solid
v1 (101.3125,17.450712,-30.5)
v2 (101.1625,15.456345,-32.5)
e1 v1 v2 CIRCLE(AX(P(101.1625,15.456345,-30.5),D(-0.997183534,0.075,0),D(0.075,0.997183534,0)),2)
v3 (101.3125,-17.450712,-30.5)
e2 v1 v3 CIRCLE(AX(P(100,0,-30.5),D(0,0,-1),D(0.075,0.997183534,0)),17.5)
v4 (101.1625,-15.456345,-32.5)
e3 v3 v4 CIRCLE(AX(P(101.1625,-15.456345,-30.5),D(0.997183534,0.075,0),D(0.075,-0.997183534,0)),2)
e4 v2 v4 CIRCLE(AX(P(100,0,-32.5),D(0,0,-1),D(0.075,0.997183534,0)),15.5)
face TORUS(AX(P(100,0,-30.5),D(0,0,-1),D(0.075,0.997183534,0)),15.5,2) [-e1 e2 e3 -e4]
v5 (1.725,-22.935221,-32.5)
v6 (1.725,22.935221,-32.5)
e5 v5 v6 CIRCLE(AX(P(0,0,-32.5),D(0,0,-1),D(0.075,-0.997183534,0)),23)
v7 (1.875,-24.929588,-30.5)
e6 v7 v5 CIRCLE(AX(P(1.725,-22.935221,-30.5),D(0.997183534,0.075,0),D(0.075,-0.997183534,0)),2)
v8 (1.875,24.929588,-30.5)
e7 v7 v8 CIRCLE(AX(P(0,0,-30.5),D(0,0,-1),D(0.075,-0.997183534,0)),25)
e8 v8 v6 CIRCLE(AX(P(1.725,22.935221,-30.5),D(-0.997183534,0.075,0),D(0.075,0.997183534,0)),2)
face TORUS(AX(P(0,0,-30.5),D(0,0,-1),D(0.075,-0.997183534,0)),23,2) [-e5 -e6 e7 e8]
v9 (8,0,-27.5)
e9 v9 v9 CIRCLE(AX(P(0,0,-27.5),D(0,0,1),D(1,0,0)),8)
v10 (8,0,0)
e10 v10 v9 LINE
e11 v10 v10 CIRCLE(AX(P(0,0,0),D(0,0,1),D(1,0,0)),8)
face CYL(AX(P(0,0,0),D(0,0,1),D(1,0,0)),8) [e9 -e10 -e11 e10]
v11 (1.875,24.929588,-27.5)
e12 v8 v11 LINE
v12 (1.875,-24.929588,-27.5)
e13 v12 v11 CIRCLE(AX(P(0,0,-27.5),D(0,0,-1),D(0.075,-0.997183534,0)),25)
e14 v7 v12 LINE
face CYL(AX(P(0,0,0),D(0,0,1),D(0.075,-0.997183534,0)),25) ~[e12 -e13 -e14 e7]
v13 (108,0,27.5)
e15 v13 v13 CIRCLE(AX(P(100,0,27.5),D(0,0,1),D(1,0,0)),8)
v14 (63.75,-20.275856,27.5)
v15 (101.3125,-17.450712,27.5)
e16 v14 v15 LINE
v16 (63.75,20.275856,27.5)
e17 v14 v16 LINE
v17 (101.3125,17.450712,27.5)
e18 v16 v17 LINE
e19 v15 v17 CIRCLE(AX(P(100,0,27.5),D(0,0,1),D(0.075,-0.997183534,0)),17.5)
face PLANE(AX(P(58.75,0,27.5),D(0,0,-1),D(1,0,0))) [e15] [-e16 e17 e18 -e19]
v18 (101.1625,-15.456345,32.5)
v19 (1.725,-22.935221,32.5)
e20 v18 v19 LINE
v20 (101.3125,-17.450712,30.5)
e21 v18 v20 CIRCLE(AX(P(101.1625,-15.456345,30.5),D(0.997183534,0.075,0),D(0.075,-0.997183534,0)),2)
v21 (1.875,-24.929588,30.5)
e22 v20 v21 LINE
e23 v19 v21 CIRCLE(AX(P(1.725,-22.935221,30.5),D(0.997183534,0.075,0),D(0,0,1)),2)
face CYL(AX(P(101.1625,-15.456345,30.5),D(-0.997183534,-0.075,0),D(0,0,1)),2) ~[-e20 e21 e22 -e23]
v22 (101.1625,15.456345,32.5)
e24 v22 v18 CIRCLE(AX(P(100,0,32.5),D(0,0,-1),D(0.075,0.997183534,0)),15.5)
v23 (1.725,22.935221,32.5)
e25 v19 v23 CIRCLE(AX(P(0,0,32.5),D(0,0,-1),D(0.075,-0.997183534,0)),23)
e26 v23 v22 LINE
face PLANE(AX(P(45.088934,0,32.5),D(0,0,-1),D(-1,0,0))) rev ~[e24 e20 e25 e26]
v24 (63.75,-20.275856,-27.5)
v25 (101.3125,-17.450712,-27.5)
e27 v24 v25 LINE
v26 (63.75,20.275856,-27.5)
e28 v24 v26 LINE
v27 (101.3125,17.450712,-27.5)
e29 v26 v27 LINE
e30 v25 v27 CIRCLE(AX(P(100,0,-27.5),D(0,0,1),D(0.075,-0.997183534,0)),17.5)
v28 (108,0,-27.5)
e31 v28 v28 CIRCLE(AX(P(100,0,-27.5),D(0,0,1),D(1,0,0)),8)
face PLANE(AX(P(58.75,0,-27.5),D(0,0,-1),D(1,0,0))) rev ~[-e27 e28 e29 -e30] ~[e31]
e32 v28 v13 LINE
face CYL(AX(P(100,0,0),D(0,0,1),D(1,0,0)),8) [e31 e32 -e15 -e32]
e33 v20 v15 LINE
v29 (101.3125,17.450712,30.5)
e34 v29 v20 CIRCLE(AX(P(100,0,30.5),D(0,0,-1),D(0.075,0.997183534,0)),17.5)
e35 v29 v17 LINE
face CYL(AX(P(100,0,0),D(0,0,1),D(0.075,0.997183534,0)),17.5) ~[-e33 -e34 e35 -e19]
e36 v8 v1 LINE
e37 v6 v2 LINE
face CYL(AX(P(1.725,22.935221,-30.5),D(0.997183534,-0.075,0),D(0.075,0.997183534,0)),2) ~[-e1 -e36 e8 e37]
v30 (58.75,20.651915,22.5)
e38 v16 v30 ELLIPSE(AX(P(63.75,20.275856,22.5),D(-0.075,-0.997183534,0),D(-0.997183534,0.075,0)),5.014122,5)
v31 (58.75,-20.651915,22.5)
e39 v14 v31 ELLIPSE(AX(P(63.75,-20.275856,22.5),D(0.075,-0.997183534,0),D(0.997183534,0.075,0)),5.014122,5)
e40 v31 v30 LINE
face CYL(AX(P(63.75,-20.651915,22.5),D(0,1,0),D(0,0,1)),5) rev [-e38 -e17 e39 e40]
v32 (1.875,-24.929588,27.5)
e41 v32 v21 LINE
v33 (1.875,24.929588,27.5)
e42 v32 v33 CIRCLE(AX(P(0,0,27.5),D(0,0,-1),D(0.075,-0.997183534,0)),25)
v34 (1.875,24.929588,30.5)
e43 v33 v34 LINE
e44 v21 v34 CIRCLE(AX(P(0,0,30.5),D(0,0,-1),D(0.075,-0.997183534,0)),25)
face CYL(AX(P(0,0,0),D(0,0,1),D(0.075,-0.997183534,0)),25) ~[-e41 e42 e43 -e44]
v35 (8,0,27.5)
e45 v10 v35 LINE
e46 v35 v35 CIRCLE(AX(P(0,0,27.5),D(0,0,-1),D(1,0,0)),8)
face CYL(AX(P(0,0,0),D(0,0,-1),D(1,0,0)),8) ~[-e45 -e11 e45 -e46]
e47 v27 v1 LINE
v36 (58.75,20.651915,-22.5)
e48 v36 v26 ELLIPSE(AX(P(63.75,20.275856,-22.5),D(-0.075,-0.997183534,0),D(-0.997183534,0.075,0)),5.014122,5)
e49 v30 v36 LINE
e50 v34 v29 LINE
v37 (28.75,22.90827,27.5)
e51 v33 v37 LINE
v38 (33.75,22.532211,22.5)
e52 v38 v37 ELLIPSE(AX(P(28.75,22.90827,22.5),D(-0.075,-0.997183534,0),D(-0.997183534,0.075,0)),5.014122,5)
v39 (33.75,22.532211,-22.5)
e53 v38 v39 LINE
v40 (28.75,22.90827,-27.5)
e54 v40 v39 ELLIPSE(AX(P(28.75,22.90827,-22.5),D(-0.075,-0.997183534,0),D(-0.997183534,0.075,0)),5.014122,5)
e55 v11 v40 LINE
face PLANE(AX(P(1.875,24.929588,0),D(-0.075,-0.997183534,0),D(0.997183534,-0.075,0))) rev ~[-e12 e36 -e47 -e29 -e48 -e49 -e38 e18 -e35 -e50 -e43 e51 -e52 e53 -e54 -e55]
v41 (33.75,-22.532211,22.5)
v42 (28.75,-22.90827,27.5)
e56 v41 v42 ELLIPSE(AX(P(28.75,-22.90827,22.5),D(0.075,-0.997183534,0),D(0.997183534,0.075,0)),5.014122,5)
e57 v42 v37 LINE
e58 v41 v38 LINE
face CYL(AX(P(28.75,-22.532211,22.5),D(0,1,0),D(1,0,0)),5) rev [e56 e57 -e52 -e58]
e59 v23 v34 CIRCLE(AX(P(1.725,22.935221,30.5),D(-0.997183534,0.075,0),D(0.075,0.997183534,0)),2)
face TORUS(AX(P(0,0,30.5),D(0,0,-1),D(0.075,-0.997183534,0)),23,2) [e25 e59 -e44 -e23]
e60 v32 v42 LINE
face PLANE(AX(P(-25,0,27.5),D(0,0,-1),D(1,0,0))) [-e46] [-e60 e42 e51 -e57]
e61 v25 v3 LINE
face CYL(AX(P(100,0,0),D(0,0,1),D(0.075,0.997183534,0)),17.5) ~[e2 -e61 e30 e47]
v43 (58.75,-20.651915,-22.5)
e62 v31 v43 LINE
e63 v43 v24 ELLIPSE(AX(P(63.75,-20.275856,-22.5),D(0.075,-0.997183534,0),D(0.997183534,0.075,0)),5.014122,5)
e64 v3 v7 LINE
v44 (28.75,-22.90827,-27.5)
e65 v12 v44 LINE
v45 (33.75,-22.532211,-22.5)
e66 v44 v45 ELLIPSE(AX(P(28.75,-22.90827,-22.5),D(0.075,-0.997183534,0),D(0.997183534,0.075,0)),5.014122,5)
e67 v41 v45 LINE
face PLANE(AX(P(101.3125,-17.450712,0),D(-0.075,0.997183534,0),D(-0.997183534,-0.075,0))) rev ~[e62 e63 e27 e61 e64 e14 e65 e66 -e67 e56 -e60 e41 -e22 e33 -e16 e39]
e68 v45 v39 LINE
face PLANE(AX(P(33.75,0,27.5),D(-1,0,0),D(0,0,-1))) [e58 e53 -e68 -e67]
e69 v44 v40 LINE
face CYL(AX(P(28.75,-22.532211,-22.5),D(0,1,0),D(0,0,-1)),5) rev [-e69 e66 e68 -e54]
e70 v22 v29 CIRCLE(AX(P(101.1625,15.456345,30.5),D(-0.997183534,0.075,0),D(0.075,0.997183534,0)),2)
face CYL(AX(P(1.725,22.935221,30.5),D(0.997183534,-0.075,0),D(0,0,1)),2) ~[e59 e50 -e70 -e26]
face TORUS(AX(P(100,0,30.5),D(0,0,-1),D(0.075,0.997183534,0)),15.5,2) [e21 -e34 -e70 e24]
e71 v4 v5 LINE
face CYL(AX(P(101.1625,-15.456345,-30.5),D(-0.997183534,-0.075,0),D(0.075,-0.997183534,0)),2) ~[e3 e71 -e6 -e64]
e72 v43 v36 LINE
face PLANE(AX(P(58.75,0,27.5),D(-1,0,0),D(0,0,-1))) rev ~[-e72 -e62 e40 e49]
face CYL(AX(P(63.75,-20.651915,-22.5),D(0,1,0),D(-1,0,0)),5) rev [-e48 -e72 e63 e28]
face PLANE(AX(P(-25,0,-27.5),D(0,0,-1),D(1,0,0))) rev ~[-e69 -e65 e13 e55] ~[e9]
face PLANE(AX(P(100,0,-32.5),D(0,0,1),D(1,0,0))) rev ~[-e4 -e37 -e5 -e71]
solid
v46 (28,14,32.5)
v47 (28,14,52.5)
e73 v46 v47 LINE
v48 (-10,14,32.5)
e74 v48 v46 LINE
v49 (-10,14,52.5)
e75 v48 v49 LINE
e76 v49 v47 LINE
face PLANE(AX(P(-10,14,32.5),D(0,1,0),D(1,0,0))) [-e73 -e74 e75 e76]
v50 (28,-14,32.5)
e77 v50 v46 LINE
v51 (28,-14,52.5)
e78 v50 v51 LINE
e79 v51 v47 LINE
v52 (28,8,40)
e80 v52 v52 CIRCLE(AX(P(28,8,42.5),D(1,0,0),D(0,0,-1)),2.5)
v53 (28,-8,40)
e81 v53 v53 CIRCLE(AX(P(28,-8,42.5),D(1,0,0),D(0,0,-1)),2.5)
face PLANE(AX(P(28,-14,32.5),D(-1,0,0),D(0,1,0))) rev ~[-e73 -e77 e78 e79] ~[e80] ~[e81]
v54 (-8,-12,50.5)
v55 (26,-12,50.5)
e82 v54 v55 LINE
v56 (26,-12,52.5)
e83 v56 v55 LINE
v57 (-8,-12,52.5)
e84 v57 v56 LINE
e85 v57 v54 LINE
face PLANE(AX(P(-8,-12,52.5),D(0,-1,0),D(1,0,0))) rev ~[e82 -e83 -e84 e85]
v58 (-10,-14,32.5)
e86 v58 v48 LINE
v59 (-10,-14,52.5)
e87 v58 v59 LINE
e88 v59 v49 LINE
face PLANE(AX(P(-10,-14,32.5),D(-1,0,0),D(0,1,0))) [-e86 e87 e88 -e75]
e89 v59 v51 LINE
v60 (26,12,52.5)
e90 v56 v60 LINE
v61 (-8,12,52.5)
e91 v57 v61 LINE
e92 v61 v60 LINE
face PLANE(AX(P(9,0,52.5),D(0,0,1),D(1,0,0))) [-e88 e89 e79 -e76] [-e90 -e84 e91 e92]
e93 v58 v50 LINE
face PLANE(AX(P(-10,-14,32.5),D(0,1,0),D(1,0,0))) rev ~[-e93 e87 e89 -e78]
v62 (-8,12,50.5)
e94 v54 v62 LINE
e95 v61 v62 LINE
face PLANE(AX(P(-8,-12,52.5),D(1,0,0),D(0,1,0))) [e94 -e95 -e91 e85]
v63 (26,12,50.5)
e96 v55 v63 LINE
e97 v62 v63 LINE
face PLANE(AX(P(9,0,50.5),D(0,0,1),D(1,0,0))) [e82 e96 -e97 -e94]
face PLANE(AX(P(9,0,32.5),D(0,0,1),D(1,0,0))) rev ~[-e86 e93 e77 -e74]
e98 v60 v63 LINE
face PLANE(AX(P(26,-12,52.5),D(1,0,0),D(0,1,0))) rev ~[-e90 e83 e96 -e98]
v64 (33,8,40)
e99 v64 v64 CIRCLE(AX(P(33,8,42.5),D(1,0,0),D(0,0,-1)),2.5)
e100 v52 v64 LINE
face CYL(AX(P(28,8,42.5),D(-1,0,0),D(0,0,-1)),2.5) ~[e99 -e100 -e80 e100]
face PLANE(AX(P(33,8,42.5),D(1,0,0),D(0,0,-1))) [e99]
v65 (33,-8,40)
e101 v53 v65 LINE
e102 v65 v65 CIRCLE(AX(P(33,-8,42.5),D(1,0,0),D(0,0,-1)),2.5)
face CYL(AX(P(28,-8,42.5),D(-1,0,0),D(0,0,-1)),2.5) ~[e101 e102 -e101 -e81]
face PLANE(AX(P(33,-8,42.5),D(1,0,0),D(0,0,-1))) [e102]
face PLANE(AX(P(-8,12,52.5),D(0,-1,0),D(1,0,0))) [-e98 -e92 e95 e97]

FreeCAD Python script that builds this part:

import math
import FreeCAD as App
import Part
import Sketcher
from FreeCAD import Vector
Q = App.Units.Quantity


def edges_at(feature, points):
    """Names of the edges that pass closest to the given points."""
    edges = feature.Shape.Edges
    near = lambda p: min(range(len(edges)), key=lambda i: edges[i].distToShape(Part.Vertex(*p))[0])
    return sorted({f"Edge{near(p) + 1}" for p in points})


def add_polygon(sketch, points):
    """Adds a closed chain of lines whose ends are joined by coincident constraints."""
    first, n = sketch.GeometryCount, len(points)
    for a, b in zip(points, points[1:] + points[:1]):
        sketch.addGeometry(Part.LineSegment(App.Vector(*a, 0), App.Vector(*b, 0)), False)
    for i in range(n):
        sketch.addConstraint(Sketcher.Constraint("Coincident", first + i, 2, first + (i + 1) % n, 1))

doc = App.newDocument("Part")
body = doc.addObject("PartDesign::Body", "Body")

# Sketch on XY plane
sketch1 = body.newObject("Sketcher::SketchObject", "Sketch")
sketch1.AttachmentSupport = (doc.getObject("XY_Plane"), [""])
sketch1.MapMode = "FlatFace"
sketch1.addGeometry([
    Part.LineSegment(Vector(101, 17, 0), Vector(2, 25, 0)),
    Part.ArcOfCircle(Part.Circle(Vector(0, 0, 0), Vector(0, 0, 1), 25), math.radians(86), math.radians(274)),
    Part.LineSegment(Vector(2, -25, 0), Vector(101, -17, 0)),
    Part.ArcOfCircle(Part.Circle(Vector(100, 0, 0), Vector(0, 0, 1), 18), math.radians(-86), math.radians(86)),
], False)
sketch1.addConstraint([
    Sketcher.Constraint("Tangent", 0, 2, 1, 1),
    Sketcher.Constraint("Tangent", 1, 2, 2, 1),
    Sketcher.Constraint("Tangent", 2, 2, 3, 1),
    Sketcher.Constraint("Tangent", 3, 2, 0, 1),
    Sketcher.Constraint("Coincident", 1, 3, -1, 1),
    Sketcher.Constraint("PointOnObject", 3, 3, -1),
    Sketcher.Constraint("Radius", 1, Q("25 mm")),
    Sketcher.Constraint("Radius", 3, Q("17.5 mm")),
    Sketcher.Constraint("DistanceX", -1, 1, 3, 3, Q("100 mm")),
])
pad1 = body.newObject("PartDesign::Pad", "Pad")
pad1.Profile = sketch1
pad1.Length = 65
pad1.Midplane = True

# Sketch on XZ plane
sketch2 = body.newObject("Sketcher::SketchObject", "Sketch001")
sketch2.AttachmentSupport = (doc.getObject("XZ_Plane"), [""])
sketch2.MapMode = "FlatFace"
add_polygon(sketch2, [(-25, -28), (-25, 28), (34, 28), (34, -28)])  # lines 0-3
add_polygon(sketch2, [(59, -28), (59, 28), (118, 28), (118, -28)])  # lines 4-7
sketch2.addConstraint([
    Sketcher.Constraint("Vertical", 0),
    Sketcher.Constraint("Horizontal", 1),
    Sketcher.Constraint("Vertical", 2),
    Sketcher.Constraint("Horizontal", 3),
    Sketcher.Constraint("Vertical", 4),
    Sketcher.Constraint("Horizontal", 5),
    Sketcher.Constraint("Vertical", 6),
    Sketcher.Constraint("Horizontal", 7),
    Sketcher.Constraint("Horizontal", 1, 2, 4, 2),
    Sketcher.Constraint("Horizontal", 3, 2, 6, 2),
    Sketcher.Constraint("Equal", 3, 5),
    Sketcher.Constraint("DistanceY", 0, 1, 0, 2, Q("55 mm")),
    Sketcher.Constraint("DistanceX", 0, 2, -1, 1, Q("25 mm")),
    Sketcher.Constraint("DistanceX", 1, 2, 4, 2, Q("25 mm")),
    Sketcher.Constraint("DistanceX", 1, 1, 1, 2, Q("58.75 mm")),
    Sketcher.Constraint("DistanceY", -1, 1, 0, 2, Q("27.5 mm")),
])
pocket1 = body.newObject("PartDesign::Pocket", "Pocket")
pocket1.Profile = sketch2
pocket1.Type = "ThroughAll"
pocket1.Midplane = True

# Sketch on XY plane
sketch3 = body.newObject("Sketcher::SketchObject", "Sketch002")
sketch3.AttachmentSupport = (doc.getObject("XY_Plane"), [""])
sketch3.MapMode = "FlatFace"
sketch3.addGeometry([
    Part.Circle(Vector(0, 0, 0), Vector(0, 0, 1), 8),
    Part.Circle(Vector(100, 0, 0), Vector(0, 0, 1), 8),
], False)
sketch3.addConstraint([
    Sketcher.Constraint("Coincident", 0, 3, -1, 1),
    Sketcher.Constraint("Equal", 0, 1),
    Sketcher.Constraint("PointOnObject", 1, 3, -1),
    Sketcher.Constraint("Diameter", 0, Q("16 mm")),
    Sketcher.Constraint("DistanceX", -1, 1, 1, 3, Q("100 mm")),
])
pad2 = body.newObject("PartDesign::Pad", "Pad001")
pad2.Profile = sketch3
pad2.Length = 65
pad2.Midplane = True
doc.recompute()

fillet = body.newObject("PartDesign::Fillet", "Fillet")
fillet.Base = (pad2, edges_at(pad2, [
    (33.75, 0, -27.5),
    (33.75, 0, 27.5),
    (58.75, 0, 27.5),
    (58.75, 0, -27.5),
]))
fillet.Radius = 5
doc.recompute()

fillet2 = body.newObject("PartDesign::Fillet", "Fillet001")
fillet2.Base = (fillet, edges_at(fillet, [
    (117.5, 0, 32.5),
    (51.594, 21.19, 32.5),
    (-25, 0, 32.5),
    (51.594, 21.19, -32.5),
    (117.5, 0, -32.5),
    (51.594, -21.19, -32.5),
    (-25, 0, -32.5),
    (51.594, -21.19, 32.5),
]))
fillet2.Radius = 2
body2 = doc.addObject("PartDesign::Body", "Body001")

# Sketch on XY plane
sketch4 = body2.newObject("Sketcher::SketchObject", "Sketch003")
sketch4.AttachmentSupport = (doc.getObject("XY_Plane001"), [""])
sketch4.MapMode = "FlatFace"
sketch4.AttachmentOffset = App.Placement(Vector(0, 0, 32.5), App.Rotation())
add_polygon(sketch4, [(-10, 14), (-10, -14), (28, -14), (28, 14)])  # lines 0-3
sketch4.addConstraint([
    Sketcher.Constraint("Vertical", 0),
    Sketcher.Constraint("Horizontal", 1),
    Sketcher.Constraint("Vertical", 2),
    Sketcher.Constraint("Horizontal", 3),
    Sketcher.Constraint("DistanceX", 1, 1, 1, 2, Q("38 mm")),
    Sketcher.Constraint("DistanceY", 0, 2, 0, 1, Q("28 mm")),
    Sketcher.Constraint("DistanceX", 0, 2, -1, 1, Q("10 mm")),
    Sketcher.Constraint("DistanceY", 0, 2, -1, 1, Q("14 mm")),
])
pad3 = body2.newObject("PartDesign::Pad", "Pad002")
pad3.Profile = sketch4
pad3.Length = 20

# Sketch on YZ plane
sketch5 = body2.newObject("Sketcher::SketchObject", "Sketch004")
sketch5.AttachmentSupport = (doc.getObject("YZ_Plane001"), [""])
sketch5.MapMode = "FlatFace"
sketch5.AttachmentOffset = App.Placement(Vector(0, 0, 28), App.Rotation())
sketch5.addGeometry([
    Part.Circle(Vector(8, 42.5, 0), Vector(0, 0, 1), 2.5),
    Part.Circle(Vector(-8, 42.5, 0), Vector(0, 0, 1), 2.5),
], False)
sketch5.addConstraint([
    Sketcher.Constraint("Equal", 0, 1),
    Sketcher.Constraint("Symmetric", 0, 3, 1, 3, -2),
    Sketcher.Constraint("Diameter", 0, Q("5 mm")),
    Sketcher.Constraint("DistanceX", -1, 1, 0, 3, Q("8 mm")),
    Sketcher.Constraint("DistanceY", -1, 1, 0, 3, Q("42.5 mm")),
])
pad4 = body2.newObject("PartDesign::Pad", "Pad003")
pad4.Profile = sketch5
pad4.Length = 5

# Sketch on XY plane
sketch6 = body2.newObject("Sketcher::SketchObject", "Sketch005")
sketch6.AttachmentSupport = (doc.getObject("XY_Plane001"), [""])
sketch6.MapMode = "FlatFace"
sketch6.AttachmentOffset = App.Placement(Vector(0, 0, 52.5), App.Rotation())
add_polygon(sketch6, [(-8, 12), (-8, -12), (26, -12), (26, 12)])  # lines 0-3
sketch6.addConstraint([
    Sketcher.Constraint("Vertical", 0),
    Sketcher.Constraint("Horizontal", 1),
    Sketcher.Constraint("Vertical", 2),
    Sketcher.Constraint("Horizontal", 3),
    Sketcher.Constraint("DistanceX", 1, 1, 1, 2, Q("34 mm")),
    Sketcher.Constraint("DistanceY", 0, 2, 0, 1, Q("24 mm")),
    Sketcher.Constraint("DistanceX", 0, 2, -1, 1, Q("8 mm")),
    Sketcher.Constraint("DistanceY", 0, 2, -1, 1, Q("12 mm")),
])
pocket2 = body2.newObject("PartDesign::Pocket", "Pocket001")
pocket2.Profile = sketch6
pocket2.Length = 2

doc.recompute()
